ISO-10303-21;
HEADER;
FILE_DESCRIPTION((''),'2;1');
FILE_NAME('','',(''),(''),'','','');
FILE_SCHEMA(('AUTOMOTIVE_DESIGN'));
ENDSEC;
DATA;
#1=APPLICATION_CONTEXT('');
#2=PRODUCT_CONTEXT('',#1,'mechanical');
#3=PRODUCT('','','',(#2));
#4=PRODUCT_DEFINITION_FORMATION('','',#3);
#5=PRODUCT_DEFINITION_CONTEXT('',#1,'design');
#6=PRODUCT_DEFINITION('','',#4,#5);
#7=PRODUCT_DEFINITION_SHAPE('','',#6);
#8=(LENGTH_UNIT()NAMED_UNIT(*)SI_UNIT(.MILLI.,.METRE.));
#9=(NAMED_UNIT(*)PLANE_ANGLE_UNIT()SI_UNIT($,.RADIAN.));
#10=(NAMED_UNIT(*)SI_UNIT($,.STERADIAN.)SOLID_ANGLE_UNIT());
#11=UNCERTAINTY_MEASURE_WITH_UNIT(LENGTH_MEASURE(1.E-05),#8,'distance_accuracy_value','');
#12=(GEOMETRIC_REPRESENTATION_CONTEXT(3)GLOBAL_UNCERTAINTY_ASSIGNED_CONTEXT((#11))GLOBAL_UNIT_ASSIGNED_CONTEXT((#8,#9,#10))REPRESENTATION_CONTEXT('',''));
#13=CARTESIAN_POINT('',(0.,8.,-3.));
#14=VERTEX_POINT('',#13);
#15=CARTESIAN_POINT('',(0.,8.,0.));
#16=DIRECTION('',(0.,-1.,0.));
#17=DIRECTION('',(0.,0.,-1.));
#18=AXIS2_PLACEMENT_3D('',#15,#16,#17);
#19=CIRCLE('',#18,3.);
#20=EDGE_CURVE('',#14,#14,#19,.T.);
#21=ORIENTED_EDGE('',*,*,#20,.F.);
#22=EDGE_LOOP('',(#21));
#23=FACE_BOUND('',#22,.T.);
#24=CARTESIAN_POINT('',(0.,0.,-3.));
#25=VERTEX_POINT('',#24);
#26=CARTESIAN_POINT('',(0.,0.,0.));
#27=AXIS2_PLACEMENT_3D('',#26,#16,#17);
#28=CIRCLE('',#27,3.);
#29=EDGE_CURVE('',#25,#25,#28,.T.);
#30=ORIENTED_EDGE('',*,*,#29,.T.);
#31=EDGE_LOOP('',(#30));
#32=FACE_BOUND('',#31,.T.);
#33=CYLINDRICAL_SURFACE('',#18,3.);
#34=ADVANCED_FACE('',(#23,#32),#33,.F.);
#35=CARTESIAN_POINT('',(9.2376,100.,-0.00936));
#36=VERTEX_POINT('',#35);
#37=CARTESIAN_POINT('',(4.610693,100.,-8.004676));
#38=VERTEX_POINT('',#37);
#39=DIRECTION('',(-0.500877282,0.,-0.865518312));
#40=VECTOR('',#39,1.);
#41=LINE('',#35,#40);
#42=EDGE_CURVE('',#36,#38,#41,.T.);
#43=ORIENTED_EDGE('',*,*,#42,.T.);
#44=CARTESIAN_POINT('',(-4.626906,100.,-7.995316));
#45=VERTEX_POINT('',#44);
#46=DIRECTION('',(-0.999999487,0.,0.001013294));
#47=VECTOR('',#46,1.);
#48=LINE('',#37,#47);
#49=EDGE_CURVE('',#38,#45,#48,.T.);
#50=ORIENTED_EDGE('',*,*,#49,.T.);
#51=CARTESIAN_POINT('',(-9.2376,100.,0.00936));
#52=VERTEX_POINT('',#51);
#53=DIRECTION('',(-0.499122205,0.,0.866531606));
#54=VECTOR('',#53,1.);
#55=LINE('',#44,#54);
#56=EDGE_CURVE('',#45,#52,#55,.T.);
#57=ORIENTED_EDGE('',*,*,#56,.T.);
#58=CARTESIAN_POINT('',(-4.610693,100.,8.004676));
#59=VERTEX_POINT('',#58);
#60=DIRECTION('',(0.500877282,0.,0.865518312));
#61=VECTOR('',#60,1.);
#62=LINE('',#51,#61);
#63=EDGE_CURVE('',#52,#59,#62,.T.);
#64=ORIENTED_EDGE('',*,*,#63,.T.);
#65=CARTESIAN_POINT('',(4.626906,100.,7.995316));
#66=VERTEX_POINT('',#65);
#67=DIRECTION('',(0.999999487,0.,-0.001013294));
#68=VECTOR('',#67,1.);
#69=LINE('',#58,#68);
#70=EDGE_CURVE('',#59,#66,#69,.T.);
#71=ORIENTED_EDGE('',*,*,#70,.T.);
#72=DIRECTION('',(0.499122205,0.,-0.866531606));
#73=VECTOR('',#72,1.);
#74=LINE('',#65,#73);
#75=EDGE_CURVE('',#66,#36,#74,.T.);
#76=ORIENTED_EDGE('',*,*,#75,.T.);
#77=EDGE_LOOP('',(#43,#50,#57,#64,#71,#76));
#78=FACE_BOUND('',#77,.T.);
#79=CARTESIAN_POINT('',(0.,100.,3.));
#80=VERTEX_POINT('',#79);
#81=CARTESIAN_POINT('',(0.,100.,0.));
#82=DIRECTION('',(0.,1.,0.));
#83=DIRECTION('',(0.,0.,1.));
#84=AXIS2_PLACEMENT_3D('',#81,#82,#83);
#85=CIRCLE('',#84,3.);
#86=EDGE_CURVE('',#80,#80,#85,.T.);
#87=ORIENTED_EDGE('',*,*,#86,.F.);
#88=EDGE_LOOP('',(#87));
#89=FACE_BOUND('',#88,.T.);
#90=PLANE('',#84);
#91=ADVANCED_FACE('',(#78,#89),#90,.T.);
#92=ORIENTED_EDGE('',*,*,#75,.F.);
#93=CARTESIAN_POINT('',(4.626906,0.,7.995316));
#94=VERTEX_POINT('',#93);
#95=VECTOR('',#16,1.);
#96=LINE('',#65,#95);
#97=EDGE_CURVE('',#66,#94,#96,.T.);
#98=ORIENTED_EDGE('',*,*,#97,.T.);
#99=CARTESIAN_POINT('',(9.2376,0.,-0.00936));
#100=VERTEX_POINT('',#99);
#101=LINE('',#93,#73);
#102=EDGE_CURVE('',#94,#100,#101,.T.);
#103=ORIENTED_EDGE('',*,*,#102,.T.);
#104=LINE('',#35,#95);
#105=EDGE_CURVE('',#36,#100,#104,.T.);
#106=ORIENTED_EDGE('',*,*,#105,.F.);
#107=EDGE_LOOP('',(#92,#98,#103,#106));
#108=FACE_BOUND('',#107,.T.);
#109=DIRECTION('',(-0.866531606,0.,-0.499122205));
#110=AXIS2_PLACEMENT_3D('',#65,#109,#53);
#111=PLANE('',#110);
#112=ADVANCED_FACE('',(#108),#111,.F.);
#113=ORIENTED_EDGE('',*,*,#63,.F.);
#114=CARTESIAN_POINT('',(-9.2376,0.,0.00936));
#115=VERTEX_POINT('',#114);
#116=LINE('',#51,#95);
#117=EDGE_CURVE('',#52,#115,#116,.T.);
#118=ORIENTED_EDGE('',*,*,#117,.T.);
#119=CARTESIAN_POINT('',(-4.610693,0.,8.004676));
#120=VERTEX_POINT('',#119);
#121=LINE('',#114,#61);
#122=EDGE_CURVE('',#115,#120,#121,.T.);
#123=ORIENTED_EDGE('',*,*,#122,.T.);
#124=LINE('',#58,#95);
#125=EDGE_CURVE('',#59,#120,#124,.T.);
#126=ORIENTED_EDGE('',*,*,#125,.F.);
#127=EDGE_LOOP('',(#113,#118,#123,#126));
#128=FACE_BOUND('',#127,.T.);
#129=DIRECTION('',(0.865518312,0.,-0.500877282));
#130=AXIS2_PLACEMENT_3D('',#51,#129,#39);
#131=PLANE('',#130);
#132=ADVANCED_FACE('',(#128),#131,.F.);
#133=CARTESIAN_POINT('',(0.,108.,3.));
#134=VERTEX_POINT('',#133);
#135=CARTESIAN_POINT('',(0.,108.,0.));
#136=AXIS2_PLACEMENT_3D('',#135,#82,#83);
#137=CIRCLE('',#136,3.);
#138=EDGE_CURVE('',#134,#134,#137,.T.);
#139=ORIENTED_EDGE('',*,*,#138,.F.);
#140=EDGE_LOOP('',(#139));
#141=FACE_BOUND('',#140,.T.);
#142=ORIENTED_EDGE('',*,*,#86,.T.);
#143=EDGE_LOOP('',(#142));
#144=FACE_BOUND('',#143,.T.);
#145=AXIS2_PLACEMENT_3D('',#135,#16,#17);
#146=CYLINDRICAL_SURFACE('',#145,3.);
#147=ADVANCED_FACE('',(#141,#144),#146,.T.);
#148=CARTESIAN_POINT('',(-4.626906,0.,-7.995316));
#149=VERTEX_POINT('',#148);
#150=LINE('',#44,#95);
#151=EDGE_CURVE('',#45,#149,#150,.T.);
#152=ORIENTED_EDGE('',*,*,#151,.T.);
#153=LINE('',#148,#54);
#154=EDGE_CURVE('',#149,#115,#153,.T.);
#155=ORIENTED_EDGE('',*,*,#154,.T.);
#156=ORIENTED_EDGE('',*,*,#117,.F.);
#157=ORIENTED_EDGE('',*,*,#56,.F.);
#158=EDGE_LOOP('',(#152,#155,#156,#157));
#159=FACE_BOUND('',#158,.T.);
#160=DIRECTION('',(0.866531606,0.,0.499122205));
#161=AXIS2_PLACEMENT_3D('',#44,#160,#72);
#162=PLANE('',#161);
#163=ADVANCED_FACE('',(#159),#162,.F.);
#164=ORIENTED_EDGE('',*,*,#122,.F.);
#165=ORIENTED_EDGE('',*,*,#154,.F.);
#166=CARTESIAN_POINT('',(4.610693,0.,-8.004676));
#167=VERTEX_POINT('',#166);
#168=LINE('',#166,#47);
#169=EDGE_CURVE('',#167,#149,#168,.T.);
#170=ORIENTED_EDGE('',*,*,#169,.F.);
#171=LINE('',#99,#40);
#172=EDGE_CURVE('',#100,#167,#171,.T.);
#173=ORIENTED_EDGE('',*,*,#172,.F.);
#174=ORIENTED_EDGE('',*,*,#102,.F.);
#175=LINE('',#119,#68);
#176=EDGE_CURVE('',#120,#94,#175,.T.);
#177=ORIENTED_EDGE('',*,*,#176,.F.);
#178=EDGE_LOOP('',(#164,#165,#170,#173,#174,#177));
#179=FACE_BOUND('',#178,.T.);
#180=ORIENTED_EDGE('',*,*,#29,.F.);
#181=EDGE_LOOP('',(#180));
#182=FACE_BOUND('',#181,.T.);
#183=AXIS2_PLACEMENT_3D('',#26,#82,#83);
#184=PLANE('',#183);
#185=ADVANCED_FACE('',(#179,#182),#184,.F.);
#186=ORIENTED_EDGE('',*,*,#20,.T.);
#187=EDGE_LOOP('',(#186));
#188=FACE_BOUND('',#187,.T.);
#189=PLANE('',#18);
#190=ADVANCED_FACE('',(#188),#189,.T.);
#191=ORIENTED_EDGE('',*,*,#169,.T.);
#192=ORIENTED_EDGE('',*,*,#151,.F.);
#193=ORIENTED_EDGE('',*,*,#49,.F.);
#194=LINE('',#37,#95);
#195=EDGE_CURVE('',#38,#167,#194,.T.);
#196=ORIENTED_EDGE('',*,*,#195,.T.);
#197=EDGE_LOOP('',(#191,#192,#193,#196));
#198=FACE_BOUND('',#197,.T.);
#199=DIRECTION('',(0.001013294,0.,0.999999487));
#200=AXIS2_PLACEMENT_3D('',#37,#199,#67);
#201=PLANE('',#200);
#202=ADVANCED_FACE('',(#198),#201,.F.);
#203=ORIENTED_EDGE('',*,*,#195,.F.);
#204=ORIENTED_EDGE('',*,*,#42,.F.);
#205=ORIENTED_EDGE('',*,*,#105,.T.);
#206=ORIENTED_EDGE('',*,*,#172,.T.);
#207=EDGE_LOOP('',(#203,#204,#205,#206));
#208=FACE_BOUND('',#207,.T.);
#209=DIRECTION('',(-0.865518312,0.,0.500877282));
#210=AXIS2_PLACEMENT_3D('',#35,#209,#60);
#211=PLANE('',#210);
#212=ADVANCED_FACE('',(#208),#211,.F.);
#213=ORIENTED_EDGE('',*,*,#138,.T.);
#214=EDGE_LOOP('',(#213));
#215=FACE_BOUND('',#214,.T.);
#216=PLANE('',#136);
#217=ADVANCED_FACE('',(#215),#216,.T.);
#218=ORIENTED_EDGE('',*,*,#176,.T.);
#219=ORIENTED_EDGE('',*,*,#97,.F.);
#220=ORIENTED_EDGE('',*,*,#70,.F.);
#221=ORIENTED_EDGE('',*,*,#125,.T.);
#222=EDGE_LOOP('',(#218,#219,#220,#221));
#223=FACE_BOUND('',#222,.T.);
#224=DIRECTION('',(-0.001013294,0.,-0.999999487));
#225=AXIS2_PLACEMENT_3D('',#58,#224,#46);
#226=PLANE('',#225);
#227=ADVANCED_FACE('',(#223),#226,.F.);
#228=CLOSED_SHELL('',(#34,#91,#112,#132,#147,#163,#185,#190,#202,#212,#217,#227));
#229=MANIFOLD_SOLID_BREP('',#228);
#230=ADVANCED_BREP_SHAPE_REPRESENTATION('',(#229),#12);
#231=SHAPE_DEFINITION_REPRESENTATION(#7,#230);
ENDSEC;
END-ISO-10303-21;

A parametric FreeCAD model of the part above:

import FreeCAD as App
import Part
import Sketcher

V = App.Vector
Q = App.Units.Quantity


def add_polygon(sketch, points):
    """Adds a closed chain of lines whose ends are joined by coincident constraints."""
    first, n = sketch.GeometryCount, len(points)
    for a, b in zip(points, points[1:] + points[:1]):
        sketch.addGeometry(Part.LineSegment(App.Vector(*a, 0), App.Vector(*b, 0)), False)
    for i in range(n):
        sketch.addConstraint(Sketcher.Constraint("Coincident", first + i, 2, first + (i + 1) % n, 1))

doc = App.newDocument("Part")
body = doc.addObject("PartDesign::Body", "Body")

# Sketch on XZ plane
sketch1 = body.newObject("Sketcher::SketchObject", "Sketch")
sketch1.AttachmentSupport = (doc.getObject("XZ_Plane"), [""])
sketch1.MapMode = "FlatFace"
add_polygon(sketch1, [(5, -8), (-5, -8), (-9, 0), (-5, 8), (5, 8), (9, 0)])  # lines 0-5
sketch1.addConstraint([
    Sketcher.Constraint("Symmetric", 0, 2, 3, 2, -1, 1),
    Sketcher.Constraint("Symmetric", 1, 2, 4, 2, -1, 1),
    Sketcher.Constraint("Symmetric", 2, 2, 5, 2, -1, 1),
    Sketcher.Constraint("Equal", 0, 1),
    Sketcher.Constraint("Equal", 1, 2),
    Sketcher.Constraint("DistanceX", 1, 2, -1, 1, Q("9.2376 mm")),
    Sketcher.Constraint("DistanceX", 2, 2, 3, 2, Q("9.2376 mm")),
    Sketcher.Constraint("DistanceY", -1, 1, 1, 2, Q("0.00936 mm")),
    Sketcher.Constraint("DistanceY", 3, 2, 2, 2, Q("0.00936 mm")),
])
pad1 = body.newObject("PartDesign::Pad", "Pad")
pad1.Profile = sketch1
pad1.Length = 100
pad1.Reversed = True

# Sketch on XZ plane
sketch2 = body.newObject("Sketcher::SketchObject", "Sketch001")
sketch2.AttachmentSupport = (doc.getObject("XZ_Plane"), [""])
sketch2.MapMode = "FlatFace"
sketch2.AttachmentOffset = App.Placement(V(0, 0, -100), App.Rotation())
sketch2.addGeometry(Part.Circle(V(0, 0, 0), V(0, 0, 1), 3), False)
sketch2.addConstraint([
    Sketcher.Constraint("Coincident", 0, 3, -1, 1),
    Sketcher.Constraint("Diameter", 0, Q("6 mm")),
])
pad2 = body.newObject("PartDesign::Pad", "Pad001")
pad2.Profile = sketch2
pad2.Length = 8
pad2.Reversed = True

# Sketch on XZ plane
sketch3 = body.newObject("Sketcher::SketchObject", "Sketch002")
sketch3.AttachmentSupport = (doc.getObject("XZ_Plane"), [""])
sketch3.MapMode = "FlatFace"
sketch3.addGeometry(Part.Circle(V(0, 0, 0), V(0, 0, 1), 3), False)
sketch3.addConstraint([
    Sketcher.Constraint("Coincident", 0, 3, -1, 1),
    Sketcher.Constraint("Diameter", 0, Q("6 mm")),
])
pocket1 = body.newObject("PartDesign::Pocket", "Pocket")
pocket1.Profile = sketch3
pocket1.Length = 8

doc.recompute()
